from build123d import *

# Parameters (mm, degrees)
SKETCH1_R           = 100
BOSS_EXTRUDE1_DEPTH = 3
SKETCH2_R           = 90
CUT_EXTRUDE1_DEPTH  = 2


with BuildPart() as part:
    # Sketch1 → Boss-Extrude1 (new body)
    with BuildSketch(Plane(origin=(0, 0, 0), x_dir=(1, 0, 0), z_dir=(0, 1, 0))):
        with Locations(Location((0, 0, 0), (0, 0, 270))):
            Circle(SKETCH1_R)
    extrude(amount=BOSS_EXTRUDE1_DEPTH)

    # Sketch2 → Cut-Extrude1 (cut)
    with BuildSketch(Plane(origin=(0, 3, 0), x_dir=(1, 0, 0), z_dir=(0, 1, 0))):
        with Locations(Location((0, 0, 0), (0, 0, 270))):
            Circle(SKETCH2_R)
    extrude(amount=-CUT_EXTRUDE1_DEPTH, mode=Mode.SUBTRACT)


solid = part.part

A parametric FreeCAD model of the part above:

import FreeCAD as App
import Part
import Sketcher
from FreeCAD import Vector

doc = App.newDocument("Part")
body = doc.addObject("PartDesign::Body", "Body")

# Sketch on XZ plane
sketch1 = doc.addObject("Sketcher::SketchObject", "Sketch")
body.addObject(sketch1)
sketch1.AttachmentSupport = (doc.XZ_Plane, [""])
sketch1.MapMode = "FlatFace"
sketch1.addGeometry(Part.Circle(Vector(0, 0, 0), Vector(0, 0, 1), 100), False)
sketch1.addConstraint([
    Sketcher.Constraint("Coincident", 0, 3, -1, 1),
    Sketcher.Constraint("Diameter", 0, 200.0),
])
pad1 = doc.addObject("PartDesign::Pad", "Pad")
body.addObject(pad1)
pad1.Profile = sketch1
pad1.Length = 3
pad1.Reversed = True

# Sketch on XZ plane
sketch2 = doc.addObject("Sketcher::SketchObject", "Sketch001")
body.addObject(sketch2)
sketch2.AttachmentSupport = (doc.XZ_Plane, [""])
sketch2.MapMode = "FlatFace"
sketch2.AttachmentOffset = App.Placement(Vector(0, 0, -3), App.Rotation())
sketch2.addGeometry(Part.Circle(Vector(0, 0, 0), Vector(0, 0, 1), 90), False)
sketch2.addConstraint([
    Sketcher.Constraint("Coincident", 0, 3, -1, 1),
    Sketcher.Constraint("Diameter", 0, 180.0),
])
pocket1 = doc.addObject("PartDesign::Pocket", "Pocket")
body.addObject(pocket1)
pocket1.Profile = sketch2
pocket1.Length = 2
pocket1.Reversed = True

doc.recompute()
